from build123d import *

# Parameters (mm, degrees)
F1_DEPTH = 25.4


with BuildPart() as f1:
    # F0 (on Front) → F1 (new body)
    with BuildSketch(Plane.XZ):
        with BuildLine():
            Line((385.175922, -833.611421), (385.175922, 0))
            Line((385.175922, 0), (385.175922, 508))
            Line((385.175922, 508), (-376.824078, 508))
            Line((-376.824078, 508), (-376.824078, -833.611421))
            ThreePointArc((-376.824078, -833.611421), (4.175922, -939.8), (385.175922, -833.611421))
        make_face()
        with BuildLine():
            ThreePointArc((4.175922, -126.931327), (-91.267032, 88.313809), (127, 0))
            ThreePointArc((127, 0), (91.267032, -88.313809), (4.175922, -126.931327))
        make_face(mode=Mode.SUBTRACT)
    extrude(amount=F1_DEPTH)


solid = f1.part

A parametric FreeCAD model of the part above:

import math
import FreeCAD as App
import Part
import Sketcher
Q = App.Units.Quantity

doc = App.newDocument("Part")
body = doc.addObject("PartDesign::Body", "Body")

# Sketch on XZ plane
sketch1 = body.newObject("Sketcher::SketchObject", "Sketch")
sketch1.AttachmentSupport = (doc.getObject("XZ_Plane"), [""])
sketch1.MapMode = "FlatFace"
sketch1.addGeometry([
    Part.LineSegment(App.Vector(385, -834, 0), App.Vector(385, 508, 0)),  # 0
    Part.LineSegment(App.Vector(385, 508, 0), App.Vector(-377, 508, 0)),  # 1
    Part.LineSegment(App.Vector(-377, 508, 0), App.Vector(-377, -834, 0)),  # 2
    Part.ArcOfCircle(Part.Circle(App.Vector(4, -203, 0), App.Vector(0, 0, 1), 737), math.radians(-121), math.radians(-59)),  # 3
    Part.ArcOfCircle(Part.Circle(App.Vector(0, 0, 0), App.Vector(0, 0, 1), 127), math.radians(-88), math.radians(0)),  # 4
    Part.ArcOfCircle(Part.Circle(App.Vector(0, 0, 0), App.Vector(0, 0, 1), 127), math.radians(0), math.radians(272)),  # 5
], False)
sketch1.addConstraint([
    Sketcher.Constraint("Coincident", 0, 2, 1, 1),
    Sketcher.Constraint("Coincident", 1, 2, 2, 1),
    Sketcher.Constraint("Coincident", 2, 2, 3, 1),
    Sketcher.Constraint("Coincident", 3, 2, 0, 1),
    Sketcher.Constraint("Tangent", 4, 1, 5, 2),
    Sketcher.Constraint("Coincident", 5, 1, 4, 2),
    Sketcher.Constraint("Vertical", 0),
    Sketcher.Constraint("Horizontal", 1),
    Sketcher.Constraint("Vertical", 2),
    Sketcher.Constraint("Coincident", 4, 3, -1, 1),
    Sketcher.Constraint("PointOnObject", 5, 1, -1),
    Sketcher.Constraint("Horizontal", 2, 2, 3, 2),
    Sketcher.Constraint("Vertical", 3, 3, 4, 1),
    Sketcher.Constraint("Radius", 3, Q("28.9999999 in")),
    Sketcher.Constraint("Radius", 4, Q("5 in")),
    Sketcher.Constraint("DistanceX", 1, 2, 1, 1, Q("30 in")),
    Sketcher.Constraint("DistanceY", 3, 3, -1, 1, Q("8.0000001 in")),
    Sketcher.Constraint("DistanceY", -1, 1, 0, 2, Q("20 in")),
    Sketcher.Constraint("DistanceX", -1, 1, 0, 2, 385.175922),
])
pad1 = body.newObject("PartDesign::Pad", "Pad")
pad1.Profile = sketch1
pad1.Length = Q("1 in")

doc.recompute()
